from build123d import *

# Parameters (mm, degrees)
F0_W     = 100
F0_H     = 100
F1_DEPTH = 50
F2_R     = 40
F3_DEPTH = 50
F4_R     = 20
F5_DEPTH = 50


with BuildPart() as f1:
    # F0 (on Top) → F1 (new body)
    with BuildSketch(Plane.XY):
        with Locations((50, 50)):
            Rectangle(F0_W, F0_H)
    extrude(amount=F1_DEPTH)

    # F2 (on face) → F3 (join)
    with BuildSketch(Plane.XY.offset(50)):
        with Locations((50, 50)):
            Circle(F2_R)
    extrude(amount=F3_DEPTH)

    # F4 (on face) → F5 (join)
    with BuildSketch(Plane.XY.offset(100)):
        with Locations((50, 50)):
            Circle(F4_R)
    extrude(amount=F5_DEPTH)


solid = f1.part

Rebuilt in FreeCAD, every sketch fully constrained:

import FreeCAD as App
import Part
import Sketcher


def add_polygon(sketch, points):
    """Adds a closed chain of lines whose ends are joined by coincident constraints."""
    first, n = sketch.GeometryCount, len(points)
    for a, b in zip(points, points[1:] + points[:1]):
        sketch.addGeometry(Part.LineSegment(App.Vector(*a, 0), App.Vector(*b, 0)), False)
    for i in range(n):
        sketch.addConstraint(Sketcher.Constraint("Coincident", first + i, 2, first + (i + 1) % n, 1))

doc = App.newDocument("Part")
body = doc.addObject("PartDesign::Body", "Body")

# Sketch on XY plane
sketch1 = body.newObject("Sketcher::SketchObject", "Sketch")
sketch1.AttachmentSupport = (doc.getObject("XY_Plane"), [""])
sketch1.MapMode = "FlatFace"
add_polygon(sketch1, [(0, 100), (0, 0), (100, 0), (100, 100)])  # lines 0-3
sketch1.addConstraint(Sketcher.Constraint("Vertical", 0))
sketch1.addConstraint(Sketcher.Constraint("Horizontal", 1))
sketch1.addConstraint(Sketcher.Constraint("Vertical", 2))
sketch1.addConstraint(Sketcher.Constraint("Horizontal", 3))
sketch1.addConstraint(Sketcher.Constraint("Coincident", 0, 2, -1, 1))
sketch1.addConstraint(Sketcher.Constraint("Equal", 3, 0))
sketch1.addConstraint(Sketcher.Constraint("DistanceX", 1, 1, 1, 2, 100.0))
pad1 = body.newObject("PartDesign::Pad", "Pad")
pad1.Profile = sketch1
pad1.Length = 50

# Sketch on XY plane
sketch2 = body.newObject("Sketcher::SketchObject", "Sketch001")
sketch2.AttachmentSupport = (doc.getObject("XY_Plane"), [""])
sketch2.MapMode = "FlatFace"
sketch2.AttachmentOffset = App.Placement(App.Vector(0, 0, 50), App.Rotation())
sketch2.addGeometry(Part.Circle(App.Vector(50, 50, 0), App.Vector(0, 0, 1), 40), False)
sketch2.addConstraint(Sketcher.Constraint("Diameter", 0, 80.0))
sketch2.addConstraint(Sketcher.Constraint("DistanceX", -1, 1, 0, 3, 50.0))
sketch2.addConstraint(Sketcher.Constraint("DistanceY", -1, 1, 0, 3, 50.0))
pad2 = body.newObject("PartDesign::Pad", "Pad001")
pad2.Profile = sketch2
pad2.Length = 50

# Sketch on XY plane
sketch3 = body.newObject("Sketcher::SketchObject", "Sketch002")
sketch3.AttachmentSupport = (doc.getObject("XY_Plane"), [""])
sketch3.MapMode = "FlatFace"
sketch3.AttachmentOffset = App.Placement(App.Vector(0, 0, 100), App.Rotation())
sketch3.addGeometry(Part.Circle(App.Vector(50, 50, 0), App.Vector(0, 0, 1), 20), False)
sketch3.addConstraint(Sketcher.Constraint("Diameter", 0, 40.0))
sketch3.addConstraint(Sketcher.Constraint("DistanceX", -1, 1, 0, 3, 50.0))
sketch3.addConstraint(Sketcher.Constraint("DistanceY", -1, 1, 0, 3, 50.0))
pad3 = body.newObject("PartDesign::Pad", "Pad002")
pad3.Profile = sketch3
pad3.Length = 50

doc.recompute()
